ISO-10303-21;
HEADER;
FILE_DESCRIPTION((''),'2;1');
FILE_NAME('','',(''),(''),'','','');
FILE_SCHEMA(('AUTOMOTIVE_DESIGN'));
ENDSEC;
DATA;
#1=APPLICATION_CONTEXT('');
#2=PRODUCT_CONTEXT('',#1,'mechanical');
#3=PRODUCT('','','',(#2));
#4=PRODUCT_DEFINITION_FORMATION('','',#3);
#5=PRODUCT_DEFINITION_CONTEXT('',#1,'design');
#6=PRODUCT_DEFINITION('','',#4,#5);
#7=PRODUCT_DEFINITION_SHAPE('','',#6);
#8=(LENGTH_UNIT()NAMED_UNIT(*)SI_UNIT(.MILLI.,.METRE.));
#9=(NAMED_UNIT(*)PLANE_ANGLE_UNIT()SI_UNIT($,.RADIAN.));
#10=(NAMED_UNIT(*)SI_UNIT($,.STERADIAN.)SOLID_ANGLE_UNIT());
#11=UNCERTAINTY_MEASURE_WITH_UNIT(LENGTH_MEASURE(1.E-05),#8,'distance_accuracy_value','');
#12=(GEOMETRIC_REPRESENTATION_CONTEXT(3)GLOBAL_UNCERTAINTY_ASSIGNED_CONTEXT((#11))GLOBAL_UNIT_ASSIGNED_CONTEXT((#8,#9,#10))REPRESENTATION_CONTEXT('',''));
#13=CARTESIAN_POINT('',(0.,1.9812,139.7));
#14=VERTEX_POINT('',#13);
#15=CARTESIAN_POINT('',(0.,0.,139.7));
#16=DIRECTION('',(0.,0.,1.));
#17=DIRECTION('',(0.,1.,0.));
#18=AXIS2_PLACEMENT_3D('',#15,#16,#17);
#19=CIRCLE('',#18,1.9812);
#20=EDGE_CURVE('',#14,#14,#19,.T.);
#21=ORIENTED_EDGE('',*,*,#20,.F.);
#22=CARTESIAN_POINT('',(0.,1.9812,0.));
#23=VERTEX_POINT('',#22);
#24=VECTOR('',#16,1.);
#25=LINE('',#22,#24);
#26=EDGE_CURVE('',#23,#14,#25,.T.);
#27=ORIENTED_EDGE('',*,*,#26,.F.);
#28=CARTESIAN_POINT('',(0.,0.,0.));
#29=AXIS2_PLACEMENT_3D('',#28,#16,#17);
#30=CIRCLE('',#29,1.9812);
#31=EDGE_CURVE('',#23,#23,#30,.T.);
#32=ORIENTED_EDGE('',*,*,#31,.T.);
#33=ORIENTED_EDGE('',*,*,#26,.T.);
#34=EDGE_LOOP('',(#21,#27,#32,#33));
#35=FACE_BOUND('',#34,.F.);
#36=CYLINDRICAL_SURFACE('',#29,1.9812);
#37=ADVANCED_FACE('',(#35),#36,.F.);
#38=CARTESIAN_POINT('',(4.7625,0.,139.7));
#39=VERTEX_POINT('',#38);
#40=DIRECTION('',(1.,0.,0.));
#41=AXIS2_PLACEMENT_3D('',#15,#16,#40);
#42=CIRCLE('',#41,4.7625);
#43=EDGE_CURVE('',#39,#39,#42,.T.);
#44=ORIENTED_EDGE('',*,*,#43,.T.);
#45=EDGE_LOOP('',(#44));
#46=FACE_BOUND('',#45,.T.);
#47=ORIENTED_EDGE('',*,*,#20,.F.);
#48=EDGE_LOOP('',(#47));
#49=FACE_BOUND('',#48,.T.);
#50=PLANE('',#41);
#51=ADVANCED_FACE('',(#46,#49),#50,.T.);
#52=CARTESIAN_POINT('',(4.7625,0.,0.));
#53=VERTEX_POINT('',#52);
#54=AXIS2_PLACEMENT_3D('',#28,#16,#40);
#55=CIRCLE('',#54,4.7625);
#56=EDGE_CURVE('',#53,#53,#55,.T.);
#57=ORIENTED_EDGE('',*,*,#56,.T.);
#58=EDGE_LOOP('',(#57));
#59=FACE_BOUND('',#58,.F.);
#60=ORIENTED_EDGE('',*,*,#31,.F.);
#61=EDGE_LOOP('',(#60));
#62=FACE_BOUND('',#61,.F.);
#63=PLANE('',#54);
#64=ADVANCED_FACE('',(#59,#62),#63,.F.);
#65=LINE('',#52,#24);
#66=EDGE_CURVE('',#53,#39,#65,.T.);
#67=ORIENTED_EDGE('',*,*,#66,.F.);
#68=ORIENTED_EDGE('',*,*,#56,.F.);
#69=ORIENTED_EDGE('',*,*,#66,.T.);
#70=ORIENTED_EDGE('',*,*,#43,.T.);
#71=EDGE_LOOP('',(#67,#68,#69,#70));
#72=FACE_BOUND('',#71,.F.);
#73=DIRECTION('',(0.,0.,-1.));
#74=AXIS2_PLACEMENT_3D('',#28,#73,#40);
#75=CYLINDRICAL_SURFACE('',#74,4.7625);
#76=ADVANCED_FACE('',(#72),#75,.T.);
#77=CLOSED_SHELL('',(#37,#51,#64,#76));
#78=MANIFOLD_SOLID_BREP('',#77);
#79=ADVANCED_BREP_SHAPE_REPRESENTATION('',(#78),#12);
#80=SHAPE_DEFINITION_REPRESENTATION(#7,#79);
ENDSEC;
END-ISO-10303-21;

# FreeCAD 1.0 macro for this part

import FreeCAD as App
import Part
import Sketcher
from FreeCAD import Vector
Q = App.Units.Quantity

doc = App.newDocument("Part")
body = doc.addObject("PartDesign::Body", "Body")

# Sketch on XY plane
sketch1 = body.newObject("Sketcher::SketchObject", "Sketch")
sketch1.AttachmentSupport = (doc.getObject("XY_Plane"), [""])
sketch1.MapMode = "FlatFace"
sketch1.addGeometry(Part.Circle(Vector(0, 0, 0), Vector(0, 0, 1), 4.8), False)
sketch1.addConstraint([
    Sketcher.Constraint("Coincident", 0, 3, -1, 1),
    Sketcher.Constraint("Diameter", 0, Q("0.375 in")),
])
pad1 = body.newObject("PartDesign::Pad", "Pad")
pad1.Profile = sketch1
pad1.Length = Q("5.5 in")

# Sketch on XY plane
sketch2 = body.newObject("Sketcher::SketchObject", "Sketch001")
sketch2.AttachmentSupport = (doc.getObject("XY_Plane"), [""])
sketch2.MapMode = "FlatFace"
sketch2.addGeometry(Part.Circle(Vector(0, 0, 0), Vector(0, 0, 1), 2), False)
sketch2.addConstraint([
    Sketcher.Constraint("Coincident", 0, 3, -1, 1),
    Sketcher.Constraint("Diameter", 0, Q("0.156 in")),
])
doc.recompute()
hole = body.newObject("PartDesign::Hole", "Hole")
hole.Profile = sketch2
hole.ThreadType = "None"
hole.Diameter = Q("0.156 in")
hole.DepthType = "ThroughAll"
hole.Reversed = True

doc.recompute()
